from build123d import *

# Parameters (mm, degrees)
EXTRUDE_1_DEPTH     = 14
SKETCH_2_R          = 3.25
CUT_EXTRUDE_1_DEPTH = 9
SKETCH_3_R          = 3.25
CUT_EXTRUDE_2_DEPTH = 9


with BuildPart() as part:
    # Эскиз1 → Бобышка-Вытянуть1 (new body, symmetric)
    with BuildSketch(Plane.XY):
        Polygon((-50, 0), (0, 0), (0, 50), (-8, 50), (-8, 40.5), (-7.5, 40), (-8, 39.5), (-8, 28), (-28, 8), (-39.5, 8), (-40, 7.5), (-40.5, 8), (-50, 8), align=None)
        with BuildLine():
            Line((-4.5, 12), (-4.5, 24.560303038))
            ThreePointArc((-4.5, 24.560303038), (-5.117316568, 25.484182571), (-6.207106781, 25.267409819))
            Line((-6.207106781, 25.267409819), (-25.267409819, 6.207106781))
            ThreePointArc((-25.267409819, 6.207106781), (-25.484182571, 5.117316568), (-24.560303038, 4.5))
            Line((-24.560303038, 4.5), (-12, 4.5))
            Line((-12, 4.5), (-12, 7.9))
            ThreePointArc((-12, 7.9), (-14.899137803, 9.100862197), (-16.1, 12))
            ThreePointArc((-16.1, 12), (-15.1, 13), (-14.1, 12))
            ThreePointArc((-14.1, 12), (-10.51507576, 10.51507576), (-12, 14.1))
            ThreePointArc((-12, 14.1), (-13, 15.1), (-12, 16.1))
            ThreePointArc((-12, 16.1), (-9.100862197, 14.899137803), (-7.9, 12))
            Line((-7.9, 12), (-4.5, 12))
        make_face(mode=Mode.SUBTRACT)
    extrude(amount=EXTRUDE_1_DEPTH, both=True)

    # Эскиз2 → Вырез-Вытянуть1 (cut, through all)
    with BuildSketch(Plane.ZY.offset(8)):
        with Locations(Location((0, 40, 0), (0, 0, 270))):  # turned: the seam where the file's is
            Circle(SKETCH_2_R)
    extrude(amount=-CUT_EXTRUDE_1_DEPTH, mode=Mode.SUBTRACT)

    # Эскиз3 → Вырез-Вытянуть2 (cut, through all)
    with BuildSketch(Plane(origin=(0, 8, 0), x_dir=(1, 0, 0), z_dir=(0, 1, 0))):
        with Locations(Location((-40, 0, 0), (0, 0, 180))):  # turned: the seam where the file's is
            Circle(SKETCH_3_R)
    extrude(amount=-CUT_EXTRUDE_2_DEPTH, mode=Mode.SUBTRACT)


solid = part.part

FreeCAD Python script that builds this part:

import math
import FreeCAD as App
import Part
import Sketcher

doc = App.newDocument("Part")
body = doc.addObject("PartDesign::Body", "Body")

# Sketch on XY plane
sketch1 = doc.addObject("Sketcher::SketchObject", "Sketch")
body.addObject(sketch1)
sketch1.AttachmentSupport = (doc.XY_Plane, [""])
sketch1.MapMode = "FlatFace"
sketch1.addGeometry([
    Part.LineSegment(App.Vector(-50, 0, 0), App.Vector(0, 0, 0)),  # 0
    Part.LineSegment(App.Vector(0, 0, 0), App.Vector(0, 50, 0)),  # 1
    Part.LineSegment(App.Vector(0, 50, 0), App.Vector(-8, 50, 0)),  # 2
    Part.LineSegment(App.Vector(-8, 50, 0), App.Vector(-8, 40.5, 0)),  # 3
    Part.LineSegment(App.Vector(-8, 40.5, 0), App.Vector(-7.5, 40, 0)),  # 4
    Part.LineSegment(App.Vector(-7.5, 40, 0), App.Vector(-8, 39.5, 0)),  # 5
    Part.LineSegment(App.Vector(-8, 39.5, 0), App.Vector(-8, 28, 0)),  # 6
    Part.LineSegment(App.Vector(-8, 28, 0), App.Vector(-28, 8, 0)),  # 7
    Part.LineSegment(App.Vector(-28, 8, 0), App.Vector(-39.5, 8, 0)),  # 8
    Part.LineSegment(App.Vector(-39.5, 8, 0), App.Vector(-40, 7.5, 0)),  # 9
    Part.LineSegment(App.Vector(-40, 7.5, 0), App.Vector(-40.5, 8, 0)),  # 10
    Part.LineSegment(App.Vector(-40.5, 8, 0), App.Vector(-50, 8, 0)),  # 11
    Part.LineSegment(App.Vector(-50, 8, 0), App.Vector(-50, 0, 0)),  # 12
    Part.LineSegment(App.Vector(-4.5, 24.6, 0), App.Vector(-4.5, 12, 0)),  # 13
    Part.LineSegment(App.Vector(-4.5, 12, 0), App.Vector(-7.9, 12, 0)),  # 14
    Part.ArcOfCircle(Part.Circle(App.Vector(-12, 12, 0), App.Vector(0, 0, 1), 4.1), math.radians(0), math.radians(90)),  # 15
    Part.ArcOfCircle(Part.Circle(App.Vector(-12, 15.1, 0), App.Vector(0, 0, 1), 1), math.radians(90), math.radians(270)),  # 16
    Part.ArcOfCircle(Part.Circle(App.Vector(-12, 12, 0), App.Vector(0, 0, 1), 2.1), math.radians(180), math.radians(450)),  # 17
    Part.ArcOfCircle(Part.Circle(App.Vector(-15.1, 12, 0), App.Vector(0, 0, 1), 1), math.radians(0), math.radians(180)),  # 18
    Part.ArcOfCircle(Part.Circle(App.Vector(-12, 12, 0), App.Vector(0, 0, 1), 4.1), math.radians(180), math.radians(270)),  # 19
    Part.LineSegment(App.Vector(-12, 7.9, 0), App.Vector(-12, 4.5, 0)),  # 20
    Part.LineSegment(App.Vector(-12, 4.5, 0), App.Vector(-24.6, 4.5, 0)),  # 21
    Part.ArcOfCircle(Part.Circle(App.Vector(-24.6, 5.5, 0), App.Vector(0, 0, 1), 1), math.radians(135), math.radians(270)),  # 22
    Part.LineSegment(App.Vector(-25.3, 6.2, 0), App.Vector(-6.2, 25.3, 0)),  # 23
    Part.ArcOfCircle(Part.Circle(App.Vector(-5.5, 24.6, 0), App.Vector(0, 0, 1), 1), math.radians(0), math.radians(135)),  # 24
], False)
sketch1.addConstraint([
    Sketcher.Constraint("Coincident", 0, 2, 1, 1),
    Sketcher.Constraint("Coincident", 1, 2, 2, 1),
    Sketcher.Constraint("Coincident", 2, 2, 3, 1),
    Sketcher.Constraint("Coincident", 3, 2, 4, 1),
    Sketcher.Constraint("Coincident", 4, 2, 5, 1),
    Sketcher.Constraint("Coincident", 5, 2, 6, 1),
    Sketcher.Constraint("Coincident", 6, 2, 7, 1),
    Sketcher.Constraint("Coincident", 7, 2, 8, 1),
    Sketcher.Constraint("Coincident", 8, 2, 9, 1),
    Sketcher.Constraint("Coincident", 9, 2, 10, 1),
    Sketcher.Constraint("Coincident", 10, 2, 11, 1),
    Sketcher.Constraint("Coincident", 11, 2, 12, 1),
    Sketcher.Constraint("Coincident", 12, 2, 0, 1),
    Sketcher.Constraint("Coincident", 13, 2, 14, 1),
    Sketcher.Constraint("Coincident", 14, 2, 15, 1),
    Sketcher.Constraint("Tangent", 15, 2, 16, 1),
    Sketcher.Constraint("Tangent", 16, 2, 17, 2),
    Sketcher.Constraint("Tangent", 17, 1, 18, 1),
    Sketcher.Constraint("Tangent", 18, 2, 19, 1),
    Sketcher.Constraint("Coincident", 19, 2, 20, 1),
    Sketcher.Constraint("Coincident", 20, 2, 21, 1),
    Sketcher.Constraint("Tangent", 21, 2, 22, 2),
    Sketcher.Constraint("Tangent", 22, 1, 23, 1),
    Sketcher.Constraint("Tangent", 23, 2, 24, 2),
    Sketcher.Constraint("Tangent", 24, 1, 13, 1),
    Sketcher.Constraint("Horizontal", 0),
    Sketcher.Constraint("Vertical", 1),
    Sketcher.Constraint("Horizontal", 2),
    Sketcher.Constraint("Vertical", 3),
    Sketcher.Constraint("Vertical", 6),
    Sketcher.Constraint("Horizontal", 8),
    Sketcher.Constraint("Horizontal", 11),
    Sketcher.Constraint("Vertical", 12),
    Sketcher.Constraint("Vertical", 13),
    Sketcher.Constraint("Horizontal", 14),
    Sketcher.Constraint("Vertical", 20),
    Sketcher.Constraint("Horizontal", 21),
    Sketcher.Constraint("Coincident", 0, 2, -1, 1),
    Sketcher.Constraint("Coincident", 17, 3, 15, 3),
    Sketcher.Constraint("Coincident", 19, 3, 15, 3),
    Sketcher.Constraint("Equal", 16, 18),
    Sketcher.Constraint("Equal", 18, 22),
    Sketcher.Constraint("Equal", 22, 24),
    Sketcher.Constraint("Perpendicular", 4, 5),
    Sketcher.Constraint("Parallel", 5, 7),
    Sketcher.Constraint("Parallel", 7, 9),
    Sketcher.Constraint("Perpendicular", 9, 10),
    Sketcher.Constraint("Perpendicular", 10, 23),
    Sketcher.Constraint("Horizontal", 17, 3, 18, 3),
    Sketcher.Constraint("Horizontal", 8, 2, 10, 2),
    Sketcher.Constraint("Horizontal", 19, 3, 13, 2),
    Sketcher.Constraint("Vertical", 15, 3, 16, 3),
    Sketcher.Constraint("Vertical", 3, 2, 5, 2),
    Sketcher.Constraint("Vertical", 16, 2, 19, 2),
    Sketcher.Constraint("Equal", 0, 1),
    Sketcher.Constraint("Equal", 11, 3),
    Sketcher.Constraint("Equal", 8, 6),
    Sketcher.Constraint("Equal", 2, 12),
    Sketcher.Constraint("Equal", 21, 13),
    Sketcher.Constraint("Equal", 14, 20),
    Sketcher.Constraint("Radius", 16, 1.0),
    Sketcher.Constraint("Radius", 15, 4.1),
    Sketcher.Constraint("DistanceX", 0, 1, 0, 2, 50.0),
    Sketcher.Constraint("DistanceX", 2, 2, 2, 1, 8.0),
    Sketcher.Constraint("DistanceX", 8, 2, 8, 1, 11.5),
    Sketcher.Constraint("DistanceX", 11, 2, 11, 1, 9.5),
    Sketcher.Constraint("DistanceX", 14, 2, 14, 1, 3.4),
    Sketcher.Constraint("DistanceX", 15, 3, -1, 1, 12.0),
    Sketcher.Constraint("DistanceY", -1, 1, 15, 3, 12.0),
    Sketcher.Constraint("DistanceY", -1, 1, 4, 2, 40.0),
    Sketcher.Constraint("Distance", 23, 26.955339),
])
pad1 = doc.addObject("PartDesign::Pad", "Pad")
body.addObject(pad1)
pad1.Profile = sketch1
pad1.Length = 28
pad1.Midplane = True

# Sketch on YZ plane
sketch2 = doc.addObject("Sketcher::SketchObject", "Sketch001")
body.addObject(sketch2)
sketch2.AttachmentSupport = (doc.YZ_Plane, [""])
sketch2.MapMode = "FlatFace"
sketch2.AttachmentOffset = App.Placement(App.Vector(0, 0, -8), App.Rotation())
sketch2.addGeometry(Part.Circle(App.Vector(40, 0, 0), App.Vector(0, 0, 1), 3.2), False)
sketch2.addConstraint([
    Sketcher.Constraint("PointOnObject", 0, 3, -1),
    Sketcher.Constraint("Diameter", 0, 6.5),
    Sketcher.Constraint("DistanceX", -1, 1, 0, 3, 40.0),
])
pocket1 = doc.addObject("PartDesign::Pocket", "Pocket")
body.addObject(pocket1)
pocket1.Profile = sketch2
pocket1.Type = "ThroughAll"
pocket1.Reversed = True

# Sketch on XZ plane
sketch3 = doc.addObject("Sketcher::SketchObject", "Sketch002")
body.addObject(sketch3)
sketch3.AttachmentSupport = (doc.XZ_Plane, [""])
sketch3.MapMode = "FlatFace"
sketch3.AttachmentOffset = App.Placement(App.Vector(0, 0, -8), App.Rotation())
sketch3.addGeometry(Part.Circle(App.Vector(-40, 0, 0), App.Vector(0, 0, 1), 3.2), False)
sketch3.addConstraint([
    Sketcher.Constraint("PointOnObject", 0, 3, -1),
    Sketcher.Constraint("Diameter", 0, 6.5),
    Sketcher.Constraint("DistanceX", 0, 3, -1, 1, 40.0),
])
pocket2 = doc.addObject("PartDesign::Pocket", "Pocket001")
body.addObject(pocket2)
pocket2.Profile = sketch3
pocket2.Type = "ThroughAll"
pocket2.Reversed = True

doc.recompute()
